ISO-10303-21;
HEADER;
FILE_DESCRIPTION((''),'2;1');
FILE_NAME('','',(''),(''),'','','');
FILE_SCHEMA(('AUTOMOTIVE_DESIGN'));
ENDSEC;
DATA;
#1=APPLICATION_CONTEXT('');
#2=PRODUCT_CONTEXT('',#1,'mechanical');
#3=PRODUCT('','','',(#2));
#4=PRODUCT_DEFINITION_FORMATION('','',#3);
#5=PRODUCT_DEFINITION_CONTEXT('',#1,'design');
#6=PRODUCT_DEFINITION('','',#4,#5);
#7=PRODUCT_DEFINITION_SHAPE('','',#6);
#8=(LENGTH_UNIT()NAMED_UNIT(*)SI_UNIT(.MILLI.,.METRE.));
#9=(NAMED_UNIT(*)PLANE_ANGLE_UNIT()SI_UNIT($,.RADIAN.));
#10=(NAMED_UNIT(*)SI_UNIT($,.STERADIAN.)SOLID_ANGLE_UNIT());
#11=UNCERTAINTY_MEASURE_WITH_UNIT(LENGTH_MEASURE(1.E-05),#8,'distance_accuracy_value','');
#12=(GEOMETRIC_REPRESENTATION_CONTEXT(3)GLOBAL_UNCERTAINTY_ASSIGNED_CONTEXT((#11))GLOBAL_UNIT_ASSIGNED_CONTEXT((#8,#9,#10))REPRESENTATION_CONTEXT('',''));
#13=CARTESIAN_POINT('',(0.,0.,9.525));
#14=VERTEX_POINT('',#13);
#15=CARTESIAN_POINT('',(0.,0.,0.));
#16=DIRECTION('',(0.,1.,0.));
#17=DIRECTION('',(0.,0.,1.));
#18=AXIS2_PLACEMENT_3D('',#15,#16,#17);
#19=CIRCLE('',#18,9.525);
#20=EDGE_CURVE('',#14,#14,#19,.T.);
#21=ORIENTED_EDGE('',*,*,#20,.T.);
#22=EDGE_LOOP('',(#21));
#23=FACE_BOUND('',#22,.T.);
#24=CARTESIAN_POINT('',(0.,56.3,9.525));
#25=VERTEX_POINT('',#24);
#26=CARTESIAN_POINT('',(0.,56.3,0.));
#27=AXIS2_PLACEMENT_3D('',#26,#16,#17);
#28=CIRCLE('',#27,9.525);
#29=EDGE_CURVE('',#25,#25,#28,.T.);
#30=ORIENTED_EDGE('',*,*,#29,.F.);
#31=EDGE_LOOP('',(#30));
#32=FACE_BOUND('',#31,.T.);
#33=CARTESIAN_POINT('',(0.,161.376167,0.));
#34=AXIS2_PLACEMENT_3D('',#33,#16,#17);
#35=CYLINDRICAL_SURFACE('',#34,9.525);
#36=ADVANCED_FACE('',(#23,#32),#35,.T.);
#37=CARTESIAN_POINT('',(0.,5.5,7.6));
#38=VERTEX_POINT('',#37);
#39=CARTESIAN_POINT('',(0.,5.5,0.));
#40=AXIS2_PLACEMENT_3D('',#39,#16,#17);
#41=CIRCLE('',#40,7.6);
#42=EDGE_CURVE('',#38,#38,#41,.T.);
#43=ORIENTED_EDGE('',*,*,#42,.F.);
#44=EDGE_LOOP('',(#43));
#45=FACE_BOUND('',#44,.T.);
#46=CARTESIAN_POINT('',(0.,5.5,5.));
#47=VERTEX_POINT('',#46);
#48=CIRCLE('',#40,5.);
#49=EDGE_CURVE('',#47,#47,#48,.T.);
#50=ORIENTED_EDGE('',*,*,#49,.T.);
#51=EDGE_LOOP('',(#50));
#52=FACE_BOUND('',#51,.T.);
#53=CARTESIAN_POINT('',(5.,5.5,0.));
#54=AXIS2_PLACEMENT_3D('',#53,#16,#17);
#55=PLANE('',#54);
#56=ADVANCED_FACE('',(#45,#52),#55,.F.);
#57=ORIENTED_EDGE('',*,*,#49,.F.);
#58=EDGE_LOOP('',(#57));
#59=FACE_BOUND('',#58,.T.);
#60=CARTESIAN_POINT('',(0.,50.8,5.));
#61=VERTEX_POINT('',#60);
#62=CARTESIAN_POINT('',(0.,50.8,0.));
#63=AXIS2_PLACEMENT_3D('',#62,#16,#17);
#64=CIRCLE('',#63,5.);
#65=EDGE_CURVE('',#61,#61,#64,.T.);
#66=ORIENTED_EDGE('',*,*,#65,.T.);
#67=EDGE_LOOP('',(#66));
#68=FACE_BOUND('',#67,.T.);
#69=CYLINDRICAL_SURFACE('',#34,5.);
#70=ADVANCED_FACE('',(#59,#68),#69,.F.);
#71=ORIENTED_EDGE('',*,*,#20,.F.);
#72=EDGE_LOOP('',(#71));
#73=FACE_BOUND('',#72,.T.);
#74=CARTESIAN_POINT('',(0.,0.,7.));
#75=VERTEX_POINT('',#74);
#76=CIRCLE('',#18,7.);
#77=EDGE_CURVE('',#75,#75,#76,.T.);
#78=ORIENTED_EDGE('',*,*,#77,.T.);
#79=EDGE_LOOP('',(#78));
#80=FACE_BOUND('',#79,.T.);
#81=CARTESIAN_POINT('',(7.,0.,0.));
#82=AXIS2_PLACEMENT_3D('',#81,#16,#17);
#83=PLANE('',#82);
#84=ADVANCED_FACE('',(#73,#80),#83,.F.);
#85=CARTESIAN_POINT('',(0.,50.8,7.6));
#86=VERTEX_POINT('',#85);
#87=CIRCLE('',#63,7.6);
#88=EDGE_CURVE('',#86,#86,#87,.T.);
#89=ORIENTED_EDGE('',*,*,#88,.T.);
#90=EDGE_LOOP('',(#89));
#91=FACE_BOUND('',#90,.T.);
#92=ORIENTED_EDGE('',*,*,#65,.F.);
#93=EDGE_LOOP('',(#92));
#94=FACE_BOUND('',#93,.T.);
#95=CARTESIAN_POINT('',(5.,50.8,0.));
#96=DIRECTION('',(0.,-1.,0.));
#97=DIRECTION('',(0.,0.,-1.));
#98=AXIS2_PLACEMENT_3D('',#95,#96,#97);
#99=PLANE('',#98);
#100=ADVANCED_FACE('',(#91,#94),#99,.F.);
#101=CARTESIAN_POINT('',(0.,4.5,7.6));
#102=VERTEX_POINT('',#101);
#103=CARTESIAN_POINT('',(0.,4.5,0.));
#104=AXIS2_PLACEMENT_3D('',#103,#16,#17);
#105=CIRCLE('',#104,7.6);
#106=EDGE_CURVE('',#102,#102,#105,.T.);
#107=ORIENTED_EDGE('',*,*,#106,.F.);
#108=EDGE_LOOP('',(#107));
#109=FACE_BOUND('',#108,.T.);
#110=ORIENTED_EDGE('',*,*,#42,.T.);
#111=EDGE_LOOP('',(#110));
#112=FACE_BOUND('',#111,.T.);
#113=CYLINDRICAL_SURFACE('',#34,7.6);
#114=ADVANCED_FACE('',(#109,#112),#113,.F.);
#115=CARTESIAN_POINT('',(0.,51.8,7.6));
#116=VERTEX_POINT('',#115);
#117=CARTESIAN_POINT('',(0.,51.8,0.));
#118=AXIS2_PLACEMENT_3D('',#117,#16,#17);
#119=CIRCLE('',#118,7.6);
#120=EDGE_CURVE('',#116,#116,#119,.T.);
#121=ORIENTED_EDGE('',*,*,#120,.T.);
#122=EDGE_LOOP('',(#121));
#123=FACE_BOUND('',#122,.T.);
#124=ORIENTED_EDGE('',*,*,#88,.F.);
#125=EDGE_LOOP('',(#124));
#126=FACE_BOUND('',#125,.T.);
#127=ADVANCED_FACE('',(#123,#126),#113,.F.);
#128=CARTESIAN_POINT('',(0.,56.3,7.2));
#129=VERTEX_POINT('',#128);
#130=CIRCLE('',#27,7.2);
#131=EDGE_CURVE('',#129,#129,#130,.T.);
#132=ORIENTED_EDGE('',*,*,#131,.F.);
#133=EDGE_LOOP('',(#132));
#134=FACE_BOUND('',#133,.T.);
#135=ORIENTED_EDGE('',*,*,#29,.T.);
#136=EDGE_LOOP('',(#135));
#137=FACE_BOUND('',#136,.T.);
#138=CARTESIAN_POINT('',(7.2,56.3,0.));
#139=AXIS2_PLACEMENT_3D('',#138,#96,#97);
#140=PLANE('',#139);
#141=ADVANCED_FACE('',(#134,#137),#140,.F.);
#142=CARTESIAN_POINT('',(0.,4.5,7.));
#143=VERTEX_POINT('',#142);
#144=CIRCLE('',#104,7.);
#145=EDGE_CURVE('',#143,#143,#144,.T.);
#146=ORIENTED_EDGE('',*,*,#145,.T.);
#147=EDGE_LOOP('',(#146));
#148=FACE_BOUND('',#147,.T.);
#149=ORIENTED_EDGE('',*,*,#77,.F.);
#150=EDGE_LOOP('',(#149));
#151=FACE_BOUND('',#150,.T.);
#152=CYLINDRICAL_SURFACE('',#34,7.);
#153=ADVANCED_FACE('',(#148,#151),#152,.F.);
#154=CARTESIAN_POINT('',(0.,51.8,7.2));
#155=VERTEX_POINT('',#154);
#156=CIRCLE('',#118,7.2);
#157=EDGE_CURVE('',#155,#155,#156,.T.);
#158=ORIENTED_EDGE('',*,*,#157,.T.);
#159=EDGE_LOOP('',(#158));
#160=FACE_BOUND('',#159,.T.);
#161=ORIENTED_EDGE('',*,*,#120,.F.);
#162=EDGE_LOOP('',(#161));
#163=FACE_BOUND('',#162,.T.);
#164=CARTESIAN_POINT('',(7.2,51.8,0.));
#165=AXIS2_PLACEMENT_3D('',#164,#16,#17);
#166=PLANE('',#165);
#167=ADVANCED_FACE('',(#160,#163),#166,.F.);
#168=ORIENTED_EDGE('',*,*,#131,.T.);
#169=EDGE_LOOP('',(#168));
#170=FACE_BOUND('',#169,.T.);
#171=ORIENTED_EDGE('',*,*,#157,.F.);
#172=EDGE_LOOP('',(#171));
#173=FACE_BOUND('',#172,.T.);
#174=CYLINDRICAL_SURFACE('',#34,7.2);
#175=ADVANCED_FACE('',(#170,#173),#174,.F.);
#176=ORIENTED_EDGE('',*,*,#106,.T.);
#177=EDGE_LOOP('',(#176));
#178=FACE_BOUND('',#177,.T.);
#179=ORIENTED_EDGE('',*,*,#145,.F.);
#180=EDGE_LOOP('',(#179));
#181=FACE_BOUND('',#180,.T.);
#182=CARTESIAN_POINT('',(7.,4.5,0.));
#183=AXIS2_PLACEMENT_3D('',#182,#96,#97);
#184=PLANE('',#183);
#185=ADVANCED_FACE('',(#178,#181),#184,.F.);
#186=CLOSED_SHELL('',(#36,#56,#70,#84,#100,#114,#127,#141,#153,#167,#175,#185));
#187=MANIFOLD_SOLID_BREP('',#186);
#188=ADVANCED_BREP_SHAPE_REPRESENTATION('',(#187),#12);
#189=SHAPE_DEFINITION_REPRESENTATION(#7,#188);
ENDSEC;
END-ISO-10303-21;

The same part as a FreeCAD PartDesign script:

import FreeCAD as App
import Part
import Sketcher

V = App.Vector
Q = App.Units.Quantity


def add_polygon(sketch, points):
    """Adds a closed chain of lines whose ends are joined by coincident constraints."""
    first, n = sketch.GeometryCount, len(points)
    for a, b in zip(points, points[1:] + points[:1]):
        sketch.addGeometry(Part.LineSegment(App.Vector(*a, 0), App.Vector(*b, 0)), False)
    for i in range(n):
        sketch.addConstraint(Sketcher.Constraint("Coincident", first + i, 2, first + (i + 1) % n, 1))

doc = App.newDocument("Part")
body = doc.addObject("PartDesign::Body", "Body")

sketch1 = doc.addObject("Sketcher::SketchObject", "Sketch")
body.addObject(sketch1)
sketch1.AttachmentSupport = (doc.XY_Plane, [""])
sketch1.MapMode = "FlatFace"
add_polygon(sketch1, [(7, 4.5), (7, 0), (9.525, 0), (9.525, 56.3), (7.2, 56.3), (7.2, 51.8), (7.6, 51.8), (7.6, 50.8), (5, 50.8), (5, 5.5), (7.6, 5.5), (7.6, 4.5)])
sketch1.addConstraint([
    Sketcher.Constraint("Vertical", 0),
    Sketcher.Constraint("Horizontal", 1),
    Sketcher.Constraint("Vertical", 2),
    Sketcher.Constraint("Horizontal", 3),
    Sketcher.Constraint("Vertical", 4),
    Sketcher.Constraint("Horizontal", 5),
    Sketcher.Constraint("Vertical", 6),
    Sketcher.Constraint("Horizontal", 7),
    Sketcher.Constraint("Vertical", 8),
    Sketcher.Constraint("Horizontal", 9),
    Sketcher.Constraint("Vertical", 10),
    Sketcher.Constraint("Horizontal", 11),
    Sketcher.Constraint("PointOnObject", 0, 2, -1),
    Sketcher.Constraint("Vertical", 6, 2, 9, 2),
    Sketcher.Constraint("Equal", 0, 4),
    Sketcher.Constraint("Equal", 6, 10),
    Sketcher.Constraint("DistanceY", 6, 2, 6, 1, Q("1 mm")),
    Sketcher.Constraint("DistanceX", 5, 1, 5, 2, Q("0.4 mm")),
    Sketcher.Constraint("DistanceX", 7, 2, 7, 1, Q("2.6 mm")),
    Sketcher.Constraint("DistanceX", 11, 2, 11, 1, Q("0.6 mm")),
    Sketcher.Constraint("DistanceY", 0, 2, 0, 1, Q("4.5 mm")),
    Sketcher.Constraint("DistanceY", 2, 1, 2, 2, Q("56.3 mm")),
    Sketcher.Constraint("DistanceX", -1, 1, 0, 2, Q("7 mm")),
    Sketcher.Constraint("DistanceX", 1, 1, 1, 2, Q("2.525 mm")),
])
revolution = doc.addObject("PartDesign::Revolution", "Revolution")
body.addObject(revolution)
revolution.Profile = sketch1
revolution.ReferenceAxis = (sketch1, ["V_Axis"])
revolution.Angle = 360

doc.recompute()
